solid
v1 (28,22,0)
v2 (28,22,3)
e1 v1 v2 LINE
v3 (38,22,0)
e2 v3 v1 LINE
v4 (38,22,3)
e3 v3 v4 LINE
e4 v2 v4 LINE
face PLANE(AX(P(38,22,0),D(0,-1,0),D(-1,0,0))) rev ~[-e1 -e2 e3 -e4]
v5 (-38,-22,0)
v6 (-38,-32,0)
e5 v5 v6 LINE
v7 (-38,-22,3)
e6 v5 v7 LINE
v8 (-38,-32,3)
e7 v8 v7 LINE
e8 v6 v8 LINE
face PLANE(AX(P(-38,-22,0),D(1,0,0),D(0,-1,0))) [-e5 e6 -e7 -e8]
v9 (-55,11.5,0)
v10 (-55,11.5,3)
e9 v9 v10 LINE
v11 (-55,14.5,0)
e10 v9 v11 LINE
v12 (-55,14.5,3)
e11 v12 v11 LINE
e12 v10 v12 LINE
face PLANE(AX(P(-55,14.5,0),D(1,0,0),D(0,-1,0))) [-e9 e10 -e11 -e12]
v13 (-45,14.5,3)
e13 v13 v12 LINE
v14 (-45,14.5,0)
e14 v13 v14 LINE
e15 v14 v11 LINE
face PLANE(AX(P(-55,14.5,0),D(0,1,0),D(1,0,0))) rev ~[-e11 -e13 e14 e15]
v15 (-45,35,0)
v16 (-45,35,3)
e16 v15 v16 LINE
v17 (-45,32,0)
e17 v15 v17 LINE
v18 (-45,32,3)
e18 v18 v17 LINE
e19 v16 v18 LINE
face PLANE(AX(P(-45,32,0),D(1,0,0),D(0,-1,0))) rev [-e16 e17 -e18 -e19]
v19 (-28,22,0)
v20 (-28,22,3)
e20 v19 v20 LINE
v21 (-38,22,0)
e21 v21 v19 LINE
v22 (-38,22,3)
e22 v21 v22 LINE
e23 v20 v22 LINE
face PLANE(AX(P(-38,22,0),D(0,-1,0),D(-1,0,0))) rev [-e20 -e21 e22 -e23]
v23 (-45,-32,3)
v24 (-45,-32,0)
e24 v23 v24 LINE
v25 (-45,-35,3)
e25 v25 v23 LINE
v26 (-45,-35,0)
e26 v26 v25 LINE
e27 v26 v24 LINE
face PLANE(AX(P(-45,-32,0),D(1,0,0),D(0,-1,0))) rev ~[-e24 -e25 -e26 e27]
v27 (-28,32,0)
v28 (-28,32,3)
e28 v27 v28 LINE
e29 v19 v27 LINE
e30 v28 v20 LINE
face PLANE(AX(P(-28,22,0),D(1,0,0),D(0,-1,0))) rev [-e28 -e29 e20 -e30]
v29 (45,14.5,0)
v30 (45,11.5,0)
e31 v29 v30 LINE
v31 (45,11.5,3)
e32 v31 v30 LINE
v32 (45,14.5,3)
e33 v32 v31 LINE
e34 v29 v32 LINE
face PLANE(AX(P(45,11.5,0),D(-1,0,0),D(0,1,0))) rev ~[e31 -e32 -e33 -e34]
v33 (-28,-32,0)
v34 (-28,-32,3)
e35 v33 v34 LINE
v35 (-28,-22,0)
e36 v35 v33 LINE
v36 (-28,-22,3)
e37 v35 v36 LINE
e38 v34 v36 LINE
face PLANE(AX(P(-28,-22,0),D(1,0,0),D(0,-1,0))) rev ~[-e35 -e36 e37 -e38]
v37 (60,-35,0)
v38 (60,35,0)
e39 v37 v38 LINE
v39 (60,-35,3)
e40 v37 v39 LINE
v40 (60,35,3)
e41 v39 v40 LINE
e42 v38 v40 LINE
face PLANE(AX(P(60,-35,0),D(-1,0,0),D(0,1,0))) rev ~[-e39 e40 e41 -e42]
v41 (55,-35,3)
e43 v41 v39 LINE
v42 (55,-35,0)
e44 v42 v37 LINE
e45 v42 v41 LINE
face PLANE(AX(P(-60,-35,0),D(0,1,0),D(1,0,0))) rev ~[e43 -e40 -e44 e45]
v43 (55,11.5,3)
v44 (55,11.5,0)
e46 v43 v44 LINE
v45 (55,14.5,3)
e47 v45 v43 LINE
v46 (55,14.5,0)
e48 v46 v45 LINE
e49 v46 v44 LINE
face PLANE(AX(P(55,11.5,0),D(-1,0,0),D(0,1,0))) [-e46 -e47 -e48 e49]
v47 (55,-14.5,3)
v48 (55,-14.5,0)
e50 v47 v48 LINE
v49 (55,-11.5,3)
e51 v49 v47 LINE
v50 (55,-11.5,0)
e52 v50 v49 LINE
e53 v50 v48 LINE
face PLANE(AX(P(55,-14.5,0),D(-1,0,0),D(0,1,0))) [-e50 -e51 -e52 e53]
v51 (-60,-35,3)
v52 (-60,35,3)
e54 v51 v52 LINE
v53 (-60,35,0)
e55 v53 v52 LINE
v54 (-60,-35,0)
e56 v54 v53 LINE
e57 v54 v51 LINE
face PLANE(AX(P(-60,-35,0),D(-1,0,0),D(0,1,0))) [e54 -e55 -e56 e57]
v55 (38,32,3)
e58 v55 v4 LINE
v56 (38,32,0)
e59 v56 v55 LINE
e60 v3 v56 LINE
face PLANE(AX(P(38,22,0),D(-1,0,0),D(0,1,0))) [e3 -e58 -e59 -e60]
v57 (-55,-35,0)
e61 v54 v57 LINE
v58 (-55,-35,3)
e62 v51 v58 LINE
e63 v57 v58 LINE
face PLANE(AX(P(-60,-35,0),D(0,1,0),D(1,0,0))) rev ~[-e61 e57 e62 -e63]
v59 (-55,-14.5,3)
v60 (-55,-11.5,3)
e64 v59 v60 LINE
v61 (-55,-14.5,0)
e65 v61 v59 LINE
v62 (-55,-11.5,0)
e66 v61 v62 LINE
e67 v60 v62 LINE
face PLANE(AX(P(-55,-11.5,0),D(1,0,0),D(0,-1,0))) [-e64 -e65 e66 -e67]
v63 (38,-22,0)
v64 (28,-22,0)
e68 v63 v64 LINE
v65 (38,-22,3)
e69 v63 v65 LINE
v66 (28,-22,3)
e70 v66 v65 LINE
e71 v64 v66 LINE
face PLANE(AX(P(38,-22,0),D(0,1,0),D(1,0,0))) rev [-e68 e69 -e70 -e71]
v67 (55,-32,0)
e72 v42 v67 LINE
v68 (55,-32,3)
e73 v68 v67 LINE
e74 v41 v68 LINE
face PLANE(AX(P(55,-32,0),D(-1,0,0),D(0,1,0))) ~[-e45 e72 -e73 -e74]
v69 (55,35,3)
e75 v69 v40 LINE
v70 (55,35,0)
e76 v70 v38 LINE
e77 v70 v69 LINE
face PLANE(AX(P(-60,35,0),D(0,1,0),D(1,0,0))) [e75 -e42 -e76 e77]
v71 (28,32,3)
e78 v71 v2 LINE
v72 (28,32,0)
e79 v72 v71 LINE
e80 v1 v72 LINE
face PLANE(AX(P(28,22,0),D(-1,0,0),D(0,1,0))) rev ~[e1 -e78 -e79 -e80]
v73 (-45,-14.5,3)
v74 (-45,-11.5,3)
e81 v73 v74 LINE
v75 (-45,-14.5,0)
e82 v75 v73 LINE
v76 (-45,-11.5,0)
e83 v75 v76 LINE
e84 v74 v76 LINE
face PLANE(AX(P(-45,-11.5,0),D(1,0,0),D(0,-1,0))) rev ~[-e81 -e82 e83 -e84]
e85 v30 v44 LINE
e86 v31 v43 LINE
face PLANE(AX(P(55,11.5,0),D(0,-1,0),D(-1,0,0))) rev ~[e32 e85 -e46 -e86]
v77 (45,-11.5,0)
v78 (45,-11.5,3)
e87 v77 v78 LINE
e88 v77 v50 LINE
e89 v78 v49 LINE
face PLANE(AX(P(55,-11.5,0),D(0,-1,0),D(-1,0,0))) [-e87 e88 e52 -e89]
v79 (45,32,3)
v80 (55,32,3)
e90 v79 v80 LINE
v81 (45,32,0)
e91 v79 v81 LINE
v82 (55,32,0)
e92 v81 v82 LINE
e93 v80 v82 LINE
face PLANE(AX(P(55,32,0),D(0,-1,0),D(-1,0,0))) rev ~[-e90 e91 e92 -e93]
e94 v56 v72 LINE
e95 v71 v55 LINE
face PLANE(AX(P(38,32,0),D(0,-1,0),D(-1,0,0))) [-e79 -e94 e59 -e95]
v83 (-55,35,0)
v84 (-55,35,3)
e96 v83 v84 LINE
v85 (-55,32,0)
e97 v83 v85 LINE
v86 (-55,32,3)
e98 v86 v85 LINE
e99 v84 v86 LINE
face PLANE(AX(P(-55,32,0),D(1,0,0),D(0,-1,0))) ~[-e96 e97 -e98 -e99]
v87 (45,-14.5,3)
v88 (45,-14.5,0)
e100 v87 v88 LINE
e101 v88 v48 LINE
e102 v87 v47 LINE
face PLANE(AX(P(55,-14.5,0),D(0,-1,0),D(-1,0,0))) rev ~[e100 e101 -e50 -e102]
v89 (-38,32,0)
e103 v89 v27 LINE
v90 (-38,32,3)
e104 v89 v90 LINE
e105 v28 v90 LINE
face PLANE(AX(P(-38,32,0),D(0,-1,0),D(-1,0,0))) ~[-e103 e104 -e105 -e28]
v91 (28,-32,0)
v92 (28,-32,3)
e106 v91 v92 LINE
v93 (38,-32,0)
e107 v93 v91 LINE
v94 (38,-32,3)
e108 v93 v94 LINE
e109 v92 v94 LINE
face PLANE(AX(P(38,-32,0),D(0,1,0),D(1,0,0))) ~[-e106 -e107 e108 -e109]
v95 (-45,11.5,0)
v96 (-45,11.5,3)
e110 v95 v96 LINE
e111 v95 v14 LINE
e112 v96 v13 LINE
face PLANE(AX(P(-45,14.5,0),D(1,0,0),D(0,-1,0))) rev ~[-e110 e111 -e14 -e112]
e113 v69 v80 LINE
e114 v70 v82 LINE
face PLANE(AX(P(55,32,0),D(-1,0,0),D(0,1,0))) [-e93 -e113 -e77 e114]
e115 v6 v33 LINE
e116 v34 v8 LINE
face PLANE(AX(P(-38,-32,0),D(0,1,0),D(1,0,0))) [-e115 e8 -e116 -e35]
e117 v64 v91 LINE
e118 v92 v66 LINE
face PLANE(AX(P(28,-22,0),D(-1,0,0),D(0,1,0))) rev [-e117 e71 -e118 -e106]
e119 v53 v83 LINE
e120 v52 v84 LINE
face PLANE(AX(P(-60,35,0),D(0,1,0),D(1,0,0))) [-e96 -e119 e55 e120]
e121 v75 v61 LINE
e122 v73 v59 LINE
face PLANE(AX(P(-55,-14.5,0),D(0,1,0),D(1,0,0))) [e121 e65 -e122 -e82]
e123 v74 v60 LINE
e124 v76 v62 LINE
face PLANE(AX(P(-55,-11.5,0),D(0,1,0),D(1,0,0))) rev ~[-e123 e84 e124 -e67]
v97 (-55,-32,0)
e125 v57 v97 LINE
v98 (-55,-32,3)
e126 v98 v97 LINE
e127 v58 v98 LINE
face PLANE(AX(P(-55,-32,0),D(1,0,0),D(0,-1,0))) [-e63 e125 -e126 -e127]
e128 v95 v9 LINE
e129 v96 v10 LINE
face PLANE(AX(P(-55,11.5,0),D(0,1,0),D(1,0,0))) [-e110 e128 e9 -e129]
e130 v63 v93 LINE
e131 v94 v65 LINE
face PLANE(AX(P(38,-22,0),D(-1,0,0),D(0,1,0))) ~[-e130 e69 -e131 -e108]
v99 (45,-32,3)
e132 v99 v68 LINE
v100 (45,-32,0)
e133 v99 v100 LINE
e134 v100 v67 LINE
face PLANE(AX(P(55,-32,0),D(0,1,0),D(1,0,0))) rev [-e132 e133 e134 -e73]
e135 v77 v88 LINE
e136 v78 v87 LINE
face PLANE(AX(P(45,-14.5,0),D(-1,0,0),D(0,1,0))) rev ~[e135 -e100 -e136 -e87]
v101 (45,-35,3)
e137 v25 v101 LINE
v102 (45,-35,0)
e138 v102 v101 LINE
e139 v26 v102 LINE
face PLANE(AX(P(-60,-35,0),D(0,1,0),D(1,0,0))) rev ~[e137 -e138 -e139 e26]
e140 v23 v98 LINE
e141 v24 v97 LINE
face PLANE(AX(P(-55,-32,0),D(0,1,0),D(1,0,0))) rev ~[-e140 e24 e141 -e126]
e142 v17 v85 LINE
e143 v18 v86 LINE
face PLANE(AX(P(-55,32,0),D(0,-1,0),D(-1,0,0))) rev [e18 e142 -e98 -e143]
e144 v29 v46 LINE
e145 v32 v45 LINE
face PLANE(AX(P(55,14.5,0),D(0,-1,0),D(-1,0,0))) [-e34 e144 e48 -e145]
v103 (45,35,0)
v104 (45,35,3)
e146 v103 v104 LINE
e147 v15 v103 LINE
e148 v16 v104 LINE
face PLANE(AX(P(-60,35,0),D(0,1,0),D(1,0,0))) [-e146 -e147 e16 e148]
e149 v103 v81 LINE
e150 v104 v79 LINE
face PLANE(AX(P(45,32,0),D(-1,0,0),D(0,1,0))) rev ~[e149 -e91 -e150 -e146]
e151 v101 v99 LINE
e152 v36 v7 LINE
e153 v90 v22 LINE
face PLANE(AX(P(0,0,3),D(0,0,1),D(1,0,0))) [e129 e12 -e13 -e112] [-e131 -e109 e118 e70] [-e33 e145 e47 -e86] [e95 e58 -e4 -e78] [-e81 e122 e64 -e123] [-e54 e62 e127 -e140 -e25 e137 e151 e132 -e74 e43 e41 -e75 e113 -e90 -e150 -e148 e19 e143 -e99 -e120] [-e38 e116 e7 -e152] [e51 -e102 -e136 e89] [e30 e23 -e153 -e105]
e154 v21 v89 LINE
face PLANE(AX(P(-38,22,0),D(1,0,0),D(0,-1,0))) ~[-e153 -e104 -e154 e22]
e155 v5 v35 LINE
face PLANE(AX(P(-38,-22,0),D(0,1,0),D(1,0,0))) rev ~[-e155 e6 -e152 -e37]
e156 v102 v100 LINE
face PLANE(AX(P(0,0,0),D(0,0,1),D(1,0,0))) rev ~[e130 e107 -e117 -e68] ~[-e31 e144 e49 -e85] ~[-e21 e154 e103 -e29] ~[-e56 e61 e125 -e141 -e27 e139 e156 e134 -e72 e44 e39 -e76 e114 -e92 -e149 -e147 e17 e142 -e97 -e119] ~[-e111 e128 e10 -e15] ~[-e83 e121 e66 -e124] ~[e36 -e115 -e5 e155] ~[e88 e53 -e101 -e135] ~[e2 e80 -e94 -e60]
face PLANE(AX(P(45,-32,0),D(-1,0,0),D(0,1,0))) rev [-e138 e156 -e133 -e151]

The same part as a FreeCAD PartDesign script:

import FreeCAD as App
import Part
import Sketcher

V = App.Vector
Q = App.Units.Quantity

doc = App.newDocument("Part")
body = doc.addObject("PartDesign::Body", "Body")

sketch1 = body.newObject("Sketcher::SketchObject", "Sketch")
sketch1.AttachmentSupport = (doc.getObject("XY_Plane"), [""])
sketch1.MapMode = "FlatFace"
sketch1.addGeometry([
    Part.LineSegment(V(-60, 35, 0), V(-60, -35, 0)),
    Part.LineSegment(V(-60, -35, 0), V(60, -35, 0)),
    Part.LineSegment(V(60, -35, 0), V(60, 35, 0)),
    Part.LineSegment(V(60, 35, 0), V(-60, 35, 0)),
], False)
sketch1.addConstraint([
    Sketcher.Constraint("Coincident", 0, 2, 1, 1),
    Sketcher.Constraint("Coincident", 1, 2, 2, 1),
    Sketcher.Constraint("Coincident", 2, 2, 3, 1),
    Sketcher.Constraint("Coincident", 3, 2, 0, 1),
    Sketcher.Constraint("Vertical", 0),
    Sketcher.Constraint("Horizontal", 1),
    Sketcher.Constraint("Vertical", 2),
    Sketcher.Constraint("Horizontal", 3),
    Sketcher.Constraint("Symmetric", 0, 2, 2, 2, -1, 1),
    Sketcher.Constraint("DistanceX", 1, 1, 1, 2, Q("120 mm")),
    Sketcher.Constraint("DistanceY", 0, 2, 0, 1, Q("70 mm")),
])
pad1 = body.newObject("PartDesign::Pad", "Pad")
pad1.Profile = sketch1
pad1.Length = 3

sketch2 = body.newObject("Sketcher::SketchObject", "Sketch001")
sketch2.AttachmentSupport = (doc.getObject("XY_Plane"), [""])
sketch2.MapMode = "FlatFace"
sketch2.addGeometry([
    Part.LineSegment(V(55, 35, 0), V(55, 32, 0)),
    Part.LineSegment(V(55, 32, 0), V(45, 32, 0)),
    Part.LineSegment(V(45, 32, 0), V(45, 35, 0)),
    Part.LineSegment(V(45, 35, 0), V(55, 35, 0)),
], False)
sketch2.addConstraint([
    Sketcher.Constraint("Coincident", 0, 2, 1, 1),
    Sketcher.Constraint("Coincident", 1, 2, 2, 1),
    Sketcher.Constraint("Coincident", 2, 2, 3, 1),
    Sketcher.Constraint("Coincident", 3, 2, 0, 1),
    Sketcher.Constraint("Vertical", 0),
    Sketcher.Constraint("Horizontal", 1),
    Sketcher.Constraint("Vertical", 2),
    Sketcher.Constraint("Horizontal", 3),
    Sketcher.Constraint("DistanceX", 1, 2, 1, 1, Q("10 mm")),
    Sketcher.Constraint("DistanceY", 0, 2, 0, 1, Q("3 mm")),
    Sketcher.Constraint("DistanceX", -1, 1, 0, 2, Q("55 mm")),
    Sketcher.Constraint("DistanceY", -1, 1, 0, 2, Q("32 mm")),
])
pocket1 = body.newObject("PartDesign::Pocket", "Pocket")
pocket1.Profile = sketch2
pocket1.Length = 141.053946
pocket1.Midplane = True
doc.recompute()

linearpattern = body.newObject("PartDesign::LinearPattern", "LinearPattern")
linearpattern.Originals = [pocket1]
linearpattern.Direction = (doc.getObject("Y_Axis"), [""])
linearpattern.Mode = "offset"
linearpattern.Offset = 20.5
linearpattern.Occurrences = 2
linearpattern.Reversed = True
body.Tip = linearpattern

sketch3 = body.newObject("Sketcher::SketchObject", "Sketch002")
sketch3.AttachmentSupport = (doc.getObject("XY_Plane"), [""])
sketch3.MapMode = "FlatFace"
sketch3.addGeometry([
    Part.LineSegment(V(38, 32, 0), V(38, 22, 0)),
    Part.LineSegment(V(38, 22, 0), V(28, 22, 0)),
    Part.LineSegment(V(28, 22, 0), V(28, 32, 0)),
    Part.LineSegment(V(28, 32, 0), V(38, 32, 0)),
], False)
sketch3.addConstraint([
    Sketcher.Constraint("Coincident", 0, 2, 1, 1),
    Sketcher.Constraint("Coincident", 1, 2, 2, 1),
    Sketcher.Constraint("Coincident", 2, 2, 3, 1),
    Sketcher.Constraint("Coincident", 3, 2, 0, 1),
    Sketcher.Constraint("Vertical", 0),
    Sketcher.Constraint("Horizontal", 1),
    Sketcher.Constraint("Vertical", 2),
    Sketcher.Constraint("Horizontal", 3),
    Sketcher.Constraint("Equal", 3, 0),
    Sketcher.Constraint("DistanceX", 1, 2, 1, 1, Q("10 mm")),
    Sketcher.Constraint("DistanceX", -1, 1, 0, 2, Q("38 mm")),
    Sketcher.Constraint("DistanceY", -1, 1, 0, 2, Q("22 mm")),
])
pocket2 = body.newObject("PartDesign::Pocket", "Pocket001")
pocket2.Profile = sketch3
pocket2.Type = "ThroughAll"
pocket2.Reversed = True
doc.recompute()

mirrored = body.newObject("PartDesign::Mirrored", "Mirrored")
mirrored.Originals = [pocket1, pocket2]
mirrored.MirrorPlane = (doc.getObject("XZ_Plane"), [""])
body.Tip = mirrored

sketch4 = body.newObject("Sketcher::SketchObject", "Sketch003")
sketch4.AttachmentSupport = (doc.getObject("XY_Plane"), [""])
sketch4.MapMode = "FlatFace"
sketch4.addGeometry([
    Part.LineSegment(V(55, -11.5, 0), V(55, -14.5, 0)),
    Part.LineSegment(V(55, -14.5, 0), V(45, -14.5, 0)),
    Part.LineSegment(V(45, -14.5, 0), V(45, -11.5, 0)),
    Part.LineSegment(V(45, -11.5, 0), V(55, -11.5, 0)),
], False)
sketch4.addConstraint([
    Sketcher.Constraint("Coincident", 0, 2, 1, 1),
    Sketcher.Constraint("Coincident", 1, 2, 2, 1),
    Sketcher.Constraint("Coincident", 2, 2, 3, 1),
    Sketcher.Constraint("Coincident", 3, 2, 0, 1),
    Sketcher.Constraint("Vertical", 0),
    Sketcher.Constraint("Horizontal", 1),
    Sketcher.Constraint("Vertical", 2),
    Sketcher.Constraint("Horizontal", 3),
    Sketcher.Constraint("DistanceX", 1, 2, 1, 1, Q("10 mm")),
    Sketcher.Constraint("DistanceY", 0, 2, 0, 1, Q("3 mm")),
    Sketcher.Constraint("DistanceX", -1, 1, 0, 2, Q("55 mm")),
    Sketcher.Constraint("DistanceY", 0, 2, -1, 1, Q("14.5 mm")),
])
pocket3 = body.newObject("PartDesign::Pocket", "Pocket002")
pocket3.Profile = sketch4
pocket3.Length = 141.053946
pocket3.Midplane = True
doc.recompute()

mirrored2 = body.newObject("PartDesign::Mirrored", "Mirrored001")
mirrored2.Originals = [pocket1, pocket2]
mirrored2.MirrorPlane = (doc.getObject("YZ_Plane"), [""])
body.Tip = mirrored2

sketch5 = body.newObject("Sketcher::SketchObject", "Sketch004")
sketch5.AttachmentSupport = (doc.getObject("XY_Plane"), [""])
sketch5.MapMode = "FlatFace"
sketch5.addGeometry([
    Part.LineSegment(V(-55, 11.5, 0), V(-55, 14.5, 0)),
    Part.LineSegment(V(-55, 14.5, 0), V(-45, 14.5, 0)),
    Part.LineSegment(V(-45, 14.5, 0), V(-45, 11.5, 0)),
    Part.LineSegment(V(-45, 11.5, 0), V(-55, 11.5, 0)),
], False)
sketch5.addConstraint([
    Sketcher.Constraint("Coincident", 0, 2, 1, 1),
    Sketcher.Constraint("Coincident", 1, 2, 2, 1),
    Sketcher.Constraint("Coincident", 2, 2, 3, 1),
    Sketcher.Constraint("Coincident", 3, 2, 0, 1),
    Sketcher.Constraint("Vertical", 0),
    Sketcher.Constraint("Horizontal", 1),
    Sketcher.Constraint("Vertical", 2),
    Sketcher.Constraint("Horizontal", 3),
    Sketcher.Constraint("DistanceX", 1, 1, 1, 2, Q("10 mm")),
    Sketcher.Constraint("DistanceY", 0, 1, 0, 2, Q("3 mm")),
    Sketcher.Constraint("DistanceX", 0, 2, -1, 1, Q("55 mm")),
    Sketcher.Constraint("DistanceY", -1, 1, 0, 2, Q("14.5 mm")),
])
pocket4 = body.newObject("PartDesign::Pocket", "Pocket003")
pocket4.Profile = sketch5
pocket4.Length = 141.053946
pocket4.Midplane = True

sketch6 = body.newObject("Sketcher::SketchObject", "Sketch005")
sketch6.AttachmentSupport = (doc.getObject("XY_Plane"), [""])
sketch6.MapMode = "FlatFace"
sketch6.addGeometry([
    Part.LineSegment(V(-55, -35, 0), V(-55, -32, 0)),
    Part.LineSegment(V(-55, -32, 0), V(-45, -32, 0)),
    Part.LineSegment(V(-45, -32, 0), V(-45, -35, 0)),
    Part.LineSegment(V(-45, -35, 0), V(-55, -35, 0)),
], False)
sketch6.addConstraint([
    Sketcher.Constraint("Coincident", 0, 2, 1, 1),
    Sketcher.Constraint("Coincident", 1, 2, 2, 1),
    Sketcher.Constraint("Coincident", 2, 2, 3, 1),
    Sketcher.Constraint("Coincident", 3, 2, 0, 1),
    Sketcher.Constraint("Vertical", 0),
    Sketcher.Constraint("Horizontal", 1),
    Sketcher.Constraint("Vertical", 2),
    Sketcher.Constraint("Horizontal", 3),
    Sketcher.Constraint("DistanceX", 1, 1, 1, 2, Q("10 mm")),
    Sketcher.Constraint("DistanceY", 0, 1, 0, 2, Q("3 mm")),
    Sketcher.Constraint("DistanceX", 0, 2, -1, 1, Q("55 mm")),
    Sketcher.Constraint("DistanceY", 0, 2, -1, 1, Q("32 mm")),
])
pocket5 = body.newObject("PartDesign::Pocket", "Pocket004")
pocket5.Profile = sketch6
pocket5.Length = 141.053946
pocket5.Midplane = True

sketch7 = body.newObject("Sketcher::SketchObject", "Sketch006")
sketch7.AttachmentSupport = (doc.getObject("XY_Plane"), [""])
sketch7.MapMode = "FlatFace"
sketch7.addGeometry([
    Part.LineSegment(V(-38, -32, 0), V(-38, -22, 0)),
    Part.LineSegment(V(-38, -22, 0), V(-28, -22, 0)),
    Part.LineSegment(V(-28, -22, 0), V(-28, -32, 0)),
    Part.LineSegment(V(-28, -32, 0), V(-38, -32, 0)),
], False)
sketch7.addConstraint([
    Sketcher.Constraint("Coincident", 0, 2, 1, 1),
    Sketcher.Constraint("Coincident", 1, 2, 2, 1),
    Sketcher.Constraint("Coincident", 2, 2, 3, 1),
    Sketcher.Constraint("Coincident", 3, 2, 0, 1),
    Sketcher.Constraint("Vertical", 0),
    Sketcher.Constraint("Horizontal", 1),
    Sketcher.Constraint("Vertical", 2),
    Sketcher.Constraint("Horizontal", 3),
    Sketcher.Constraint("Equal", 3, 0),
    Sketcher.Constraint("DistanceX", 1, 1, 1, 2, Q("10 mm")),
    Sketcher.Constraint("DistanceX", 0, 2, -1, 1, Q("38 mm")),
    Sketcher.Constraint("DistanceY", 0, 2, -1, 1, Q("22 mm")),
])
pocket6 = body.newObject("PartDesign::Pocket", "Pocket005")
pocket6.Profile = sketch7
pocket6.Type = "ThroughAll"
pocket6.Reversed = True

sketch8 = body.newObject("Sketcher::SketchObject", "Sketch007")
sketch8.AttachmentSupport = (doc.getObject("XY_Plane"), [""])
sketch8.MapMode = "FlatFace"
sketch8.addGeometry([
    Part.LineSegment(V(-55, -14.5, 0), V(-55, -11.5, 0)),
    Part.LineSegment(V(-55, -11.5, 0), V(-45, -11.5, 0)),
    Part.LineSegment(V(-45, -11.5, 0), V(-45, -14.5, 0)),
    Part.LineSegment(V(-45, -14.5, 0), V(-55, -14.5, 0)),
], False)
sketch8.addConstraint([
    Sketcher.Constraint("Coincident", 0, 2, 1, 1),
    Sketcher.Constraint("Coincident", 1, 2, 2, 1),
    Sketcher.Constraint("Coincident", 2, 2, 3, 1),
    Sketcher.Constraint("Coincident", 3, 2, 0, 1),
    Sketcher.Constraint("Vertical", 0),
    Sketcher.Constraint("Horizontal", 1),
    Sketcher.Constraint("Vertical", 2),
    Sketcher.Constraint("Horizontal", 3),
    Sketcher.Constraint("DistanceX", 1, 1, 1, 2, Q("10 mm")),
    Sketcher.Constraint("DistanceY", 0, 1, 0, 2, Q("3 mm")),
    Sketcher.Constraint("DistanceX", 0, 2, -1, 1, Q("55 mm")),
    Sketcher.Constraint("DistanceY", 0, 2, -1, 1, Q("11.5 mm")),
])
pocket7 = body.newObject("PartDesign::Pocket", "Pocket006")
pocket7.Profile = sketch8
pocket7.Length = 141.053946
pocket7.Midplane = True

doc.recompute()
